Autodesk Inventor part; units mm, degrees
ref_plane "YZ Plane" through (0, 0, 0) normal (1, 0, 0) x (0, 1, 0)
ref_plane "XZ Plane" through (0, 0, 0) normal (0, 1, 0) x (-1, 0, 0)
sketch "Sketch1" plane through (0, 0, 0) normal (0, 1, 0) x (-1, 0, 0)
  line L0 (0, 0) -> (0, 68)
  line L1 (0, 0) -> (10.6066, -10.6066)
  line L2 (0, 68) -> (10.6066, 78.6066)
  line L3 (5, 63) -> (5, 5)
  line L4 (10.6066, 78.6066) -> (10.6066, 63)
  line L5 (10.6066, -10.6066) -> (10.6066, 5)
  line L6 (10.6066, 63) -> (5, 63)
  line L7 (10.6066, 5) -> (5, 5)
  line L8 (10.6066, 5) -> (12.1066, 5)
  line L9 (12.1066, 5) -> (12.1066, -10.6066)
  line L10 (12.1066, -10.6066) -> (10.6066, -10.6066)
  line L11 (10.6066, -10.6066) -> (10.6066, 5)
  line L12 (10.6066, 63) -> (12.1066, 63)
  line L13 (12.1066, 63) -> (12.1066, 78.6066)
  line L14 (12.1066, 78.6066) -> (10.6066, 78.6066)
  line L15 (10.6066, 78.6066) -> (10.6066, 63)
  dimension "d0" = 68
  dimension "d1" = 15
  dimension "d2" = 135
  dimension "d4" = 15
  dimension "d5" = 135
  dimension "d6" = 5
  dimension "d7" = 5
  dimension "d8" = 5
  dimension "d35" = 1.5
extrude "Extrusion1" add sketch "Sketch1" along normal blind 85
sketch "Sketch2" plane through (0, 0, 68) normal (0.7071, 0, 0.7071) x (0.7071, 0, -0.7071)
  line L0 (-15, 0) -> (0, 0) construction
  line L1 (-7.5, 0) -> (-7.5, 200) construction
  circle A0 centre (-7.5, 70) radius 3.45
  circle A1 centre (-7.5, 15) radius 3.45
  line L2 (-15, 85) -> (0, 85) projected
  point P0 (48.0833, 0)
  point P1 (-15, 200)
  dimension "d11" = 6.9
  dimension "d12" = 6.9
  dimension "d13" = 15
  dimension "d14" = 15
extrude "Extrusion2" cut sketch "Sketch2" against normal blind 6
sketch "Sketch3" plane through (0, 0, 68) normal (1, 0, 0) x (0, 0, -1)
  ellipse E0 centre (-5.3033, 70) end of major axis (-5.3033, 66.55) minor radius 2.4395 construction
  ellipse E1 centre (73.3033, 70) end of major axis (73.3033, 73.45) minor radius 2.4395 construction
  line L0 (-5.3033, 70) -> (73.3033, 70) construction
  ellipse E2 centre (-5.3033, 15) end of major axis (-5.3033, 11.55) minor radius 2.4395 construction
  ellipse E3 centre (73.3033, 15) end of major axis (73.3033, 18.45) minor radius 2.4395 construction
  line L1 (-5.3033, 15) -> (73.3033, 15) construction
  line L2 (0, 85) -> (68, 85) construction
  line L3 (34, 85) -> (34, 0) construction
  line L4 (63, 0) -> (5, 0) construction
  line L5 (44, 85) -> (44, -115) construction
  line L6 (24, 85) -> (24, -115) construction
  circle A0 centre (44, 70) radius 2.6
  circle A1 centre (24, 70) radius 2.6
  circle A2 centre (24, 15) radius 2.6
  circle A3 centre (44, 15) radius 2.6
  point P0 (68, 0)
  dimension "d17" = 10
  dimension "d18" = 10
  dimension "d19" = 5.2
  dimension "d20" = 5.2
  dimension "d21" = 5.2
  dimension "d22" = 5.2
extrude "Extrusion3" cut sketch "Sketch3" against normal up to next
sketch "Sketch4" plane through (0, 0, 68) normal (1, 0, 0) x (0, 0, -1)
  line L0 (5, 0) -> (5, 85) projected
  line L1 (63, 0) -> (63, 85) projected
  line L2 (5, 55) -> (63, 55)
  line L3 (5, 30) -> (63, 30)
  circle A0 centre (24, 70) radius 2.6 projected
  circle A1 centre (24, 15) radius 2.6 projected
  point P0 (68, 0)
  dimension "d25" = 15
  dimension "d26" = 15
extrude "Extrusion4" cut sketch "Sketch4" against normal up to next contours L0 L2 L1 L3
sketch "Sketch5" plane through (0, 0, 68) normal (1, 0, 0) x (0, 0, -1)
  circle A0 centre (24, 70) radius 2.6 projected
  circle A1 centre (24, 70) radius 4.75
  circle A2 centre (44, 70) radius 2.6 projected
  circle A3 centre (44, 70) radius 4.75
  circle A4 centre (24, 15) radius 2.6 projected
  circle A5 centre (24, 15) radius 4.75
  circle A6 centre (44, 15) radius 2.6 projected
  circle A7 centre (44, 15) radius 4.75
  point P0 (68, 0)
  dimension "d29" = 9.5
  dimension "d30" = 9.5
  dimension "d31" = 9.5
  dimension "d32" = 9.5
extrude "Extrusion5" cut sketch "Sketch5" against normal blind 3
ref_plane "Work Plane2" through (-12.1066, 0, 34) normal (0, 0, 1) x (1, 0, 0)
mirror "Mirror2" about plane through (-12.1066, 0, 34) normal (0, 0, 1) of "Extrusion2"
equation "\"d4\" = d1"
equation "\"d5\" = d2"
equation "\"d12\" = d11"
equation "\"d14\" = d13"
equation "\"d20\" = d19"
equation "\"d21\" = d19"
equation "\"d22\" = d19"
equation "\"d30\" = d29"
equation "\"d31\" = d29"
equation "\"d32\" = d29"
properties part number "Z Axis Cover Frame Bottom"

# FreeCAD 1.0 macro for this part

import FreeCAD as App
import Part
import Sketcher
from FreeCAD import Vector


def add_polygon(sketch, points):
    """Adds a closed chain of lines whose ends are joined by coincident constraints."""
    first, n = sketch.GeometryCount, len(points)
    for a, b in zip(points, points[1:] + points[:1]):
        sketch.addGeometry(Part.LineSegment(App.Vector(*a, 0), App.Vector(*b, 0)), False)
    for i in range(n):
        sketch.addConstraint(Sketcher.Constraint("Coincident", first + i, 2, first + (i + 1) % n, 1))

doc = App.newDocument("Part")
body = doc.addObject("PartDesign::Body", "Body")

# Sketch on XZ plane
sketch1 = body.newObject("Sketcher::SketchObject", "Sketch")
sketch1.AttachmentSupport = (doc.getObject("XZ_Plane"), [""])
sketch1.MapMode = "FlatFace"
add_polygon(sketch1, [(0, 68), (0, 0), (-10.6, -10.6), (-12.1, -10.6), (-12.1, 5), (-5, 5), (-5, 63), (-12.1, 63), (-12.1, 78.6), (-10.6, 78.6)])  # lines 0-9
sketch1.addConstraint(Sketcher.Constraint("Vertical", 0))
sketch1.addConstraint(Sketcher.Constraint("Horizontal", 2))
sketch1.addConstraint(Sketcher.Constraint("Vertical", 3))
sketch1.addConstraint(Sketcher.Constraint("Horizontal", 4))
sketch1.addConstraint(Sketcher.Constraint("Vertical", 5))
sketch1.addConstraint(Sketcher.Constraint("Horizontal", 6))
sketch1.addConstraint(Sketcher.Constraint("Vertical", 7))
sketch1.addConstraint(Sketcher.Constraint("Horizontal", 8))
sketch1.addConstraint(Sketcher.Constraint("Coincident", 0, 2, -1, 1))
sketch1.addConstraint(Sketcher.Constraint("Perpendicular", 1, 9))
sketch1.addConstraint(Sketcher.Constraint("Vertical", 3, 2, 6, 2))
sketch1.addConstraint(Sketcher.Constraint("Vertical", 1, 2, 8, 2))
sketch1.addConstraint(Sketcher.Constraint("Equal", 3, 7))
sketch1.addConstraint(Sketcher.Constraint("Equal", 1, 9))
sketch1.addConstraint(Sketcher.Constraint("DistanceY", 0, 2, 0, 1, 68.0))
sketch1.addConstraint(Sketcher.Constraint("Distance", 1, 15.0))
sketch1.addConstraint(Sketcher.Constraint("DistanceX", 2, 2, 2, 1, 1.5))
sketch1.addConstraint(Sketcher.Constraint("DistanceY", -1, 1, 3, 2, 5.0))
sketch1.addConstraint(Sketcher.Constraint("DistanceX", 4, 2, -1, 1, 5.0))
pad1 = body.newObject("PartDesign::Pad", "Pad")
pad1.Profile = sketch1
pad1.Length = 85
pad1.Reversed = True

# Sketch on an angled plane
sketch2 = body.newObject("Sketcher::SketchObject", "Sketch001")
sketch2.Placement = App.Placement(Vector(0, 0, 68), App.Rotation(Vector(0.707106781, 0, -0.707106781), Vector(0, 0.999999999, 0), Vector(0.707106781, 0, 0.707106781), "ZXY"))
sketch2.addGeometry(Part.Circle(Vector(-7.5, 70, 0), Vector(0, 0, 1), 3.5), False)
sketch2.addGeometry(Part.Circle(Vector(-7.5, 15, 0), Vector(0, 0, 1), 3.5), False)
sketch2.addConstraint(Sketcher.Constraint("Equal", 0, 1))
sketch2.addConstraint(Sketcher.Constraint("Vertical", 0, 3, 1, 3))
sketch2.addConstraint(Sketcher.Constraint("Diameter", 0, 6.9))
sketch2.addConstraint(Sketcher.Constraint("DistanceY", -1, 1, 1, 3, 15.0))
sketch2.addConstraint(Sketcher.Constraint("DistanceY", -1, 1, 0, 3, 70.0))
sketch2.addConstraint(Sketcher.Constraint("DistanceX", 0, 3, -1, 1, 7.5))
pocket1 = body.newObject("PartDesign::Pocket", "Pocket")
pocket1.Profile = sketch2
pocket1.Length = 6

# Sketch on YZ plane
sketch3 = body.newObject("Sketcher::SketchObject", "Sketch002")
sketch3.AttachmentSupport = (doc.getObject("YZ_Plane"), [""])
sketch3.MapMode = "FlatFace"
sketch3.addGeometry(Part.Circle(Vector(70, 24, 0), Vector(0, 0, 1), 2.6), False)
sketch3.addGeometry(Part.Circle(Vector(70, 44, 0), Vector(0, 0, 1), 2.6), False)
sketch3.addGeometry(Part.Circle(Vector(15, 44, 0), Vector(0, 0, 1), 2.6), False)
sketch3.addGeometry(Part.Circle(Vector(15, 24, 0), Vector(0, 0, 1), 2.6), False)
sketch3.addConstraint(Sketcher.Constraint("Equal", 0, 1))
sketch3.addConstraint(Sketcher.Constraint("Equal", 1, 2))
sketch3.addConstraint(Sketcher.Constraint("Equal", 2, 3))
sketch3.addConstraint(Sketcher.Constraint("Horizontal", 1, 3, 2, 3))
sketch3.addConstraint(Sketcher.Constraint("Horizontal", 0, 3, 3, 3))
sketch3.addConstraint(Sketcher.Constraint("Vertical", 0, 3, 1, 3))
sketch3.addConstraint(Sketcher.Constraint("Vertical", 2, 3, 3, 3))
sketch3.addConstraint(Sketcher.Constraint("Diameter", 0, 5.2))
sketch3.addConstraint(Sketcher.Constraint("DistanceX", -1, 1, 0, 3, 70.0))
sketch3.addConstraint(Sketcher.Constraint("DistanceY", -1, 1, 0, 3, 24.0))
sketch3.addConstraint(Sketcher.Constraint("DistanceY", -1, 1, 1, 3, 44.0))
sketch3.addConstraint(Sketcher.Constraint("DistanceX", -1, 1, 2, 3, 15.0))
pocket2 = body.newObject("PartDesign::Pocket", "Pocket001")
pocket2.Profile = sketch3
pocket2.Type = "UpToFirst"

# Sketch on YZ plane
sketch4 = body.newObject("Sketcher::SketchObject", "Sketch003")
sketch4.AttachmentSupport = (doc.getObject("YZ_Plane"), [""])
sketch4.MapMode = "FlatFace"
add_polygon(sketch4, [(55, 63), (30, 63), (30, 5), (55, 5)])  # lines 0-3
sketch4.addConstraint(Sketcher.Constraint("Horizontal", 0))
sketch4.addConstraint(Sketcher.Constraint("Vertical", 1))
sketch4.addConstraint(Sketcher.Constraint("Horizontal", 2))
sketch4.addConstraint(Sketcher.Constraint("Vertical", 3))
sketch4.addConstraint(Sketcher.Constraint("DistanceX", 0, 2, 0, 1, 25.0))
sketch4.addConstraint(Sketcher.Constraint("DistanceY", 1, 2, 1, 1, 58.0))
sketch4.addConstraint(Sketcher.Constraint("DistanceX", -1, 1, 0, 2, 30.0))
sketch4.addConstraint(Sketcher.Constraint("DistanceY", -1, 1, 0, 2, 63.0))
pocket3 = body.newObject("PartDesign::Pocket", "Pocket002")
pocket3.Profile = sketch4
pocket3.Type = "UpToFirst"

# Sketch on YZ plane
sketch5 = body.newObject("Sketcher::SketchObject", "Sketch004")
sketch5.AttachmentSupport = (doc.getObject("YZ_Plane"), [""])
sketch5.MapMode = "FlatFace"
sketch5.addGeometry(Part.Circle(Vector(70, 44, 0), Vector(0, 0, 1), 4.8), False)
sketch5.addGeometry(Part.Circle(Vector(70, 44, 0), Vector(0, 0, 1), 2.6), False)
sketch5.addGeometry(Part.Circle(Vector(70, 24, 0), Vector(0, 0, 1), 4.8), False)
sketch5.addGeometry(Part.Circle(Vector(70, 24, 0), Vector(0, 0, 1), 2.6), False)
sketch5.addGeometry(Part.Circle(Vector(15, 44, 0), Vector(0, 0, 1), 4.8), False)
sketch5.addGeometry(Part.Circle(Vector(15, 44, 0), Vector(0, 0, 1), 2.6), False)
sketch5.addGeometry(Part.Circle(Vector(15, 24, 0), Vector(0, 0, 1), 4.8), False)
sketch5.addGeometry(Part.Circle(Vector(15, 24, 0), Vector(0, 0, 1), 2.6), False)
sketch5.addConstraint(Sketcher.Constraint("Coincident", 1, 3, 0, 3))
sketch5.addConstraint(Sketcher.Constraint("Coincident", 3, 3, 2, 3))
sketch5.addConstraint(Sketcher.Constraint("Coincident", 5, 3, 4, 3))
sketch5.addConstraint(Sketcher.Constraint("Coincident", 7, 3, 6, 3))
sketch5.addConstraint(Sketcher.Constraint("Equal", 0, 2))
sketch5.addConstraint(Sketcher.Constraint("Equal", 1, 3))
sketch5.addConstraint(Sketcher.Constraint("Equal", 2, 4))
sketch5.addConstraint(Sketcher.Constraint("Equal", 3, 5))
sketch5.addConstraint(Sketcher.Constraint("Equal", 4, 6))
sketch5.addConstraint(Sketcher.Constraint("Equal", 5, 7))
sketch5.addConstraint(Sketcher.Constraint("Horizontal", 1, 3, 4, 3))
sketch5.addConstraint(Sketcher.Constraint("Horizontal", 3, 3, 6, 3))
sketch5.addConstraint(Sketcher.Constraint("Vertical", 1, 3, 2, 3))
sketch5.addConstraint(Sketcher.Constraint("Vertical", 5, 3, 6, 3))
sketch5.addConstraint(Sketcher.Constraint("Diameter", 0, 9.5))
sketch5.addConstraint(Sketcher.Constraint("Diameter", 1, 5.2))
sketch5.addConstraint(Sketcher.Constraint("DistanceX", -1, 1, 0, 3, 70.0))
sketch5.addConstraint(Sketcher.Constraint("DistanceY", -1, 1, 0, 3, 44.0))
sketch5.addConstraint(Sketcher.Constraint("DistanceY", -1, 1, 2, 3, 24.0))
sketch5.addConstraint(Sketcher.Constraint("DistanceX", -1, 1, 4, 3, 15.0))
pocket4 = body.newObject("PartDesign::Pocket", "Pocket003")
pocket4.Profile = sketch5
pocket4.Length = 3
doc.recompute()

datumplane = body.newObject("PartDesign::Plane", "DatumPlane")
datumplane.AttachmentSupport = (doc.getObject("XY_Plane"), [""])
datumplane.MapMode = "FlatFace"
datumplane.AttachmentOffset = App.Placement(Vector(0, 0, 34), App.Rotation())
mirrored = body.newObject("PartDesign::Mirrored", "Mirrored")
mirrored.Originals = [pocket1]
mirrored.MirrorPlane = (datumplane, [""])
body.Tip = mirrored

doc.recompute()
